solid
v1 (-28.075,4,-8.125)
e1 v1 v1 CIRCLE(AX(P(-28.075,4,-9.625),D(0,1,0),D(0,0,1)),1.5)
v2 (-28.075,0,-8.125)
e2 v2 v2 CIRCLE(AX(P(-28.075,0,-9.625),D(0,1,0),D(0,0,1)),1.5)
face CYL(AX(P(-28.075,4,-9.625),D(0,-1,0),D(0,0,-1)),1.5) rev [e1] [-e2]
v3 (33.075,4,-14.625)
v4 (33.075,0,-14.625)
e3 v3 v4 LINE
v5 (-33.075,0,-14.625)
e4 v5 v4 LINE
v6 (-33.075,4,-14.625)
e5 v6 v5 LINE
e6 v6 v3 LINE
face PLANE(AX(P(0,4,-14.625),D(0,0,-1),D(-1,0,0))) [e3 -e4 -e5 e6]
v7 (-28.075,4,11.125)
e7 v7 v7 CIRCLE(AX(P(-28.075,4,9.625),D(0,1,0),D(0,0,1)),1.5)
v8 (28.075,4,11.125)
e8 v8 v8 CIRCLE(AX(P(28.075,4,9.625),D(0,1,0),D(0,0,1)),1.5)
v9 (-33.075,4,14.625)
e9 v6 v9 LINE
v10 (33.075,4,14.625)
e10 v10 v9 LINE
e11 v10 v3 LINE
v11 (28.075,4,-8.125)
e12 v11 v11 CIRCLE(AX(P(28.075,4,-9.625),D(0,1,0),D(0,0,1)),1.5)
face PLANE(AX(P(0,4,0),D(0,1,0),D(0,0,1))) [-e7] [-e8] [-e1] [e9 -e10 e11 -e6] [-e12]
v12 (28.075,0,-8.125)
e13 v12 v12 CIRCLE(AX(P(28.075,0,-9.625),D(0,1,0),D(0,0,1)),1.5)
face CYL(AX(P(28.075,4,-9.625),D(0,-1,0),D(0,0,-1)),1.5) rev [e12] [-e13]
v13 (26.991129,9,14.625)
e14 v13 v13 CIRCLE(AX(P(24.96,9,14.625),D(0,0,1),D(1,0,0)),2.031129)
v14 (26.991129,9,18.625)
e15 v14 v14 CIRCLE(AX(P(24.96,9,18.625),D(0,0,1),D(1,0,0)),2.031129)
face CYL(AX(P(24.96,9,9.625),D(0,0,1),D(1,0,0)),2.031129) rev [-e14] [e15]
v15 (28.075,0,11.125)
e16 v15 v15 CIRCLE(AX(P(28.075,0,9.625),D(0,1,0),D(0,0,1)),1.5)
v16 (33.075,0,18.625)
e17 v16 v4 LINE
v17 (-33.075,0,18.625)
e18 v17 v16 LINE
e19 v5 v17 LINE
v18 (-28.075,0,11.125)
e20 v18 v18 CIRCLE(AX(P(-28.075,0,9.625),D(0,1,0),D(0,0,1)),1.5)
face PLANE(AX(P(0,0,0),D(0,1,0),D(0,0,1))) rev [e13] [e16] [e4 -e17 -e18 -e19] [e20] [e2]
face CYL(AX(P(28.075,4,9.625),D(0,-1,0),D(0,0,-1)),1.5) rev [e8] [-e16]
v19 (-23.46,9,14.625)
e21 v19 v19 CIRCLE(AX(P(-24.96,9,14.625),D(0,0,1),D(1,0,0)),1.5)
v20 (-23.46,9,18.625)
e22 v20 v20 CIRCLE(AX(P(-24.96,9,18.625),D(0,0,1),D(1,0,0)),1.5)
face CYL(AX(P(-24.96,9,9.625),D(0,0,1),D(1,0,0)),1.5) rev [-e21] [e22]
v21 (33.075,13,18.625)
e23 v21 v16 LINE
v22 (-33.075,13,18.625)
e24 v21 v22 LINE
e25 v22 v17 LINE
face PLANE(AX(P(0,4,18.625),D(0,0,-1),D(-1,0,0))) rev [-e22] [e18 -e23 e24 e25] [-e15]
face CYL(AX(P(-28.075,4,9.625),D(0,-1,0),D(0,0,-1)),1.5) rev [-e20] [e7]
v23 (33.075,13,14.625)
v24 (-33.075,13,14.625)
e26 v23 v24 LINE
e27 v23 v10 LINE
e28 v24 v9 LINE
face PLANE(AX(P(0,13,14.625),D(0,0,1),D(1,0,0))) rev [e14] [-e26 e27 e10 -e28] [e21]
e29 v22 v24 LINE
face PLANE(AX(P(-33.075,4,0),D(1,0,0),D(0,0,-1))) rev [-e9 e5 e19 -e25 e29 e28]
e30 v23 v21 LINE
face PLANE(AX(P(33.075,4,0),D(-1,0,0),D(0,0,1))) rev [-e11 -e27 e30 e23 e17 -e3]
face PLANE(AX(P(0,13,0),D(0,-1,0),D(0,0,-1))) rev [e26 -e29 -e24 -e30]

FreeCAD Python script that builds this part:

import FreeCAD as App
import Part
import Sketcher
from FreeCAD import Vector


def add_polygon(sketch, points):
    """Adds a closed chain of lines whose ends are joined by coincident constraints."""
    first, n = sketch.GeometryCount, len(points)
    for a, b in zip(points, points[1:] + points[:1]):
        sketch.addGeometry(Part.LineSegment(App.Vector(*a, 0), App.Vector(*b, 0)), False)
    for i in range(n):
        sketch.addConstraint(Sketcher.Constraint("Coincident", first + i, 2, first + (i + 1) % n, 1))

doc = App.newDocument("Part")
body = doc.addObject("PartDesign::Body", "Body")

# Sketch on XZ plane
sketch1 = body.newObject("Sketcher::SketchObject", "Sketch")
sketch1.AttachmentSupport = (doc.getObject("XZ_Plane"), [""])
sketch1.MapMode = "FlatFace"
add_polygon(sketch1, [(-33.1, 18.6), (33.1, 18.6), (33.1, -14.6), (-33.1, -14.6)])  # lines 0-3
sketch1.addGeometry(Part.Circle(Vector(-28.1, 9.6, 0), Vector(0, 0, 1), 1.5), False)  # 4
sketch1.addGeometry(Part.Circle(Vector(28.1, 9.6, 0), Vector(0, 0, 1), 1.5), False)  # 5
sketch1.addGeometry(Part.Circle(Vector(-28.1, -9.6, 0), Vector(0, 0, 1), 1.5), False)  # 6
sketch1.addGeometry(Part.Circle(Vector(28.1, -9.6, 0), Vector(0, 0, 1), 1.5), False)  # 7
sketch1.addConstraint(Sketcher.Constraint("Horizontal", 0))
sketch1.addConstraint(Sketcher.Constraint("Vertical", 1))
sketch1.addConstraint(Sketcher.Constraint("Horizontal", 2))
sketch1.addConstraint(Sketcher.Constraint("Vertical", 3))
sketch1.addConstraint(Sketcher.Constraint("Equal", 4, 5))
sketch1.addConstraint(Sketcher.Constraint("Equal", 5, 6))
sketch1.addConstraint(Sketcher.Constraint("Equal", 6, 7))
sketch1.addConstraint(Sketcher.Constraint("Symmetric", 5, 3, 6, 3, -1, 1))
sketch1.addConstraint(Sketcher.Constraint("Symmetric", 4, 3, 7, 3, -1, 1))
sketch1.addConstraint(Sketcher.Constraint("Symmetric", 4, 3, 5, 3, -2))
sketch1.addConstraint(Sketcher.Constraint("Diameter", 4, 3.0))
sketch1.addConstraint(Sketcher.Constraint("DistanceX", 5, 3, 0, 2, 5.0))
sketch1.addConstraint(Sketcher.Constraint("DistanceY", 5, 3, 0, 2, 9.0))
sketch1.addConstraint(Sketcher.Constraint("DistanceY", 1, 2, 7, 3, 5.0))
sketch1.addConstraint(Sketcher.Constraint("DistanceX", 2, 2, 6, 3, 5.0))
sketch1.addConstraint(Sketcher.Constraint("DistanceX", 0, 1, 0, 2, 66.15))
sketch1.addConstraint(Sketcher.Constraint("DistanceY", 1, 2, 1, 1, 33.25))
pad1 = body.newObject("PartDesign::Pad", "Pad")
pad1.Profile = sketch1
pad1.Length = 4
pad1.Reversed = True

# Sketch on XZ plane
sketch2 = body.newObject("Sketcher::SketchObject", "Sketch001")
sketch2.AttachmentSupport = (doc.getObject("XZ_Plane"), [""])
sketch2.MapMode = "FlatFace"
sketch2.AttachmentOffset = App.Placement(Vector(0, 0, -4), App.Rotation())
add_polygon(sketch2, [(-33.1, 14.6), (-33.1, 18.6), (33.1, 18.6), (33.1, 14.6)])  # lines 0-3
sketch2.addConstraint(Sketcher.Constraint("Vertical", 0))
sketch2.addConstraint(Sketcher.Constraint("Horizontal", 1))
sketch2.addConstraint(Sketcher.Constraint("Vertical", 2))
sketch2.addConstraint(Sketcher.Constraint("Horizontal", 3))
sketch2.addConstraint(Sketcher.Constraint("DistanceY", 0, 1, 0, 2, 4.0))
sketch2.addConstraint(Sketcher.Constraint("DistanceX", 1, 1, 1, 2, 66.15))
sketch2.addConstraint(Sketcher.Constraint("DistanceX", 0, 2, -1, 1, 33.075))
sketch2.addConstraint(Sketcher.Constraint("DistanceY", -1, 1, 0, 2, 18.625))
pad2 = body.newObject("PartDesign::Pad", "Pad001")
pad2.Profile = sketch2
pad2.Length = 9
pad2.Reversed = True

# Sketch on XY plane
sketch3 = body.newObject("Sketcher::SketchObject", "Sketch002")
sketch3.AttachmentSupport = (doc.getObject("XY_Plane"), [""])
sketch3.MapMode = "FlatFace"
sketch3.AttachmentOffset = App.Placement(Vector(0, 0, 18.625), App.Rotation())
sketch3.addGeometry(Part.Circle(Vector(-25, 9, 0), Vector(0, 0, 1), 1.5), False)
sketch3.addGeometry(Part.Circle(Vector(25, 9, 0), Vector(0, 0, 1), 2), False)
sketch3.addConstraint(Sketcher.Constraint("Symmetric", 0, 3, 1, 3, -2))
sketch3.addConstraint(Sketcher.Constraint("Diameter", 0, 3.0))
sketch3.addConstraint(Sketcher.Constraint("DistanceY", -1, 1, 0, 3, 9.0))
sketch3.addConstraint(Sketcher.Constraint("DistanceX", 0, 3, -1, 1, 24.96))
sketch3.addConstraint(Sketcher.Constraint("Diameter", 1, 4.062258))
pocket1 = body.newObject("PartDesign::Pocket", "Pocket")
pocket1.Profile = sketch3
pocket1.Length = 9

doc.recompute()
